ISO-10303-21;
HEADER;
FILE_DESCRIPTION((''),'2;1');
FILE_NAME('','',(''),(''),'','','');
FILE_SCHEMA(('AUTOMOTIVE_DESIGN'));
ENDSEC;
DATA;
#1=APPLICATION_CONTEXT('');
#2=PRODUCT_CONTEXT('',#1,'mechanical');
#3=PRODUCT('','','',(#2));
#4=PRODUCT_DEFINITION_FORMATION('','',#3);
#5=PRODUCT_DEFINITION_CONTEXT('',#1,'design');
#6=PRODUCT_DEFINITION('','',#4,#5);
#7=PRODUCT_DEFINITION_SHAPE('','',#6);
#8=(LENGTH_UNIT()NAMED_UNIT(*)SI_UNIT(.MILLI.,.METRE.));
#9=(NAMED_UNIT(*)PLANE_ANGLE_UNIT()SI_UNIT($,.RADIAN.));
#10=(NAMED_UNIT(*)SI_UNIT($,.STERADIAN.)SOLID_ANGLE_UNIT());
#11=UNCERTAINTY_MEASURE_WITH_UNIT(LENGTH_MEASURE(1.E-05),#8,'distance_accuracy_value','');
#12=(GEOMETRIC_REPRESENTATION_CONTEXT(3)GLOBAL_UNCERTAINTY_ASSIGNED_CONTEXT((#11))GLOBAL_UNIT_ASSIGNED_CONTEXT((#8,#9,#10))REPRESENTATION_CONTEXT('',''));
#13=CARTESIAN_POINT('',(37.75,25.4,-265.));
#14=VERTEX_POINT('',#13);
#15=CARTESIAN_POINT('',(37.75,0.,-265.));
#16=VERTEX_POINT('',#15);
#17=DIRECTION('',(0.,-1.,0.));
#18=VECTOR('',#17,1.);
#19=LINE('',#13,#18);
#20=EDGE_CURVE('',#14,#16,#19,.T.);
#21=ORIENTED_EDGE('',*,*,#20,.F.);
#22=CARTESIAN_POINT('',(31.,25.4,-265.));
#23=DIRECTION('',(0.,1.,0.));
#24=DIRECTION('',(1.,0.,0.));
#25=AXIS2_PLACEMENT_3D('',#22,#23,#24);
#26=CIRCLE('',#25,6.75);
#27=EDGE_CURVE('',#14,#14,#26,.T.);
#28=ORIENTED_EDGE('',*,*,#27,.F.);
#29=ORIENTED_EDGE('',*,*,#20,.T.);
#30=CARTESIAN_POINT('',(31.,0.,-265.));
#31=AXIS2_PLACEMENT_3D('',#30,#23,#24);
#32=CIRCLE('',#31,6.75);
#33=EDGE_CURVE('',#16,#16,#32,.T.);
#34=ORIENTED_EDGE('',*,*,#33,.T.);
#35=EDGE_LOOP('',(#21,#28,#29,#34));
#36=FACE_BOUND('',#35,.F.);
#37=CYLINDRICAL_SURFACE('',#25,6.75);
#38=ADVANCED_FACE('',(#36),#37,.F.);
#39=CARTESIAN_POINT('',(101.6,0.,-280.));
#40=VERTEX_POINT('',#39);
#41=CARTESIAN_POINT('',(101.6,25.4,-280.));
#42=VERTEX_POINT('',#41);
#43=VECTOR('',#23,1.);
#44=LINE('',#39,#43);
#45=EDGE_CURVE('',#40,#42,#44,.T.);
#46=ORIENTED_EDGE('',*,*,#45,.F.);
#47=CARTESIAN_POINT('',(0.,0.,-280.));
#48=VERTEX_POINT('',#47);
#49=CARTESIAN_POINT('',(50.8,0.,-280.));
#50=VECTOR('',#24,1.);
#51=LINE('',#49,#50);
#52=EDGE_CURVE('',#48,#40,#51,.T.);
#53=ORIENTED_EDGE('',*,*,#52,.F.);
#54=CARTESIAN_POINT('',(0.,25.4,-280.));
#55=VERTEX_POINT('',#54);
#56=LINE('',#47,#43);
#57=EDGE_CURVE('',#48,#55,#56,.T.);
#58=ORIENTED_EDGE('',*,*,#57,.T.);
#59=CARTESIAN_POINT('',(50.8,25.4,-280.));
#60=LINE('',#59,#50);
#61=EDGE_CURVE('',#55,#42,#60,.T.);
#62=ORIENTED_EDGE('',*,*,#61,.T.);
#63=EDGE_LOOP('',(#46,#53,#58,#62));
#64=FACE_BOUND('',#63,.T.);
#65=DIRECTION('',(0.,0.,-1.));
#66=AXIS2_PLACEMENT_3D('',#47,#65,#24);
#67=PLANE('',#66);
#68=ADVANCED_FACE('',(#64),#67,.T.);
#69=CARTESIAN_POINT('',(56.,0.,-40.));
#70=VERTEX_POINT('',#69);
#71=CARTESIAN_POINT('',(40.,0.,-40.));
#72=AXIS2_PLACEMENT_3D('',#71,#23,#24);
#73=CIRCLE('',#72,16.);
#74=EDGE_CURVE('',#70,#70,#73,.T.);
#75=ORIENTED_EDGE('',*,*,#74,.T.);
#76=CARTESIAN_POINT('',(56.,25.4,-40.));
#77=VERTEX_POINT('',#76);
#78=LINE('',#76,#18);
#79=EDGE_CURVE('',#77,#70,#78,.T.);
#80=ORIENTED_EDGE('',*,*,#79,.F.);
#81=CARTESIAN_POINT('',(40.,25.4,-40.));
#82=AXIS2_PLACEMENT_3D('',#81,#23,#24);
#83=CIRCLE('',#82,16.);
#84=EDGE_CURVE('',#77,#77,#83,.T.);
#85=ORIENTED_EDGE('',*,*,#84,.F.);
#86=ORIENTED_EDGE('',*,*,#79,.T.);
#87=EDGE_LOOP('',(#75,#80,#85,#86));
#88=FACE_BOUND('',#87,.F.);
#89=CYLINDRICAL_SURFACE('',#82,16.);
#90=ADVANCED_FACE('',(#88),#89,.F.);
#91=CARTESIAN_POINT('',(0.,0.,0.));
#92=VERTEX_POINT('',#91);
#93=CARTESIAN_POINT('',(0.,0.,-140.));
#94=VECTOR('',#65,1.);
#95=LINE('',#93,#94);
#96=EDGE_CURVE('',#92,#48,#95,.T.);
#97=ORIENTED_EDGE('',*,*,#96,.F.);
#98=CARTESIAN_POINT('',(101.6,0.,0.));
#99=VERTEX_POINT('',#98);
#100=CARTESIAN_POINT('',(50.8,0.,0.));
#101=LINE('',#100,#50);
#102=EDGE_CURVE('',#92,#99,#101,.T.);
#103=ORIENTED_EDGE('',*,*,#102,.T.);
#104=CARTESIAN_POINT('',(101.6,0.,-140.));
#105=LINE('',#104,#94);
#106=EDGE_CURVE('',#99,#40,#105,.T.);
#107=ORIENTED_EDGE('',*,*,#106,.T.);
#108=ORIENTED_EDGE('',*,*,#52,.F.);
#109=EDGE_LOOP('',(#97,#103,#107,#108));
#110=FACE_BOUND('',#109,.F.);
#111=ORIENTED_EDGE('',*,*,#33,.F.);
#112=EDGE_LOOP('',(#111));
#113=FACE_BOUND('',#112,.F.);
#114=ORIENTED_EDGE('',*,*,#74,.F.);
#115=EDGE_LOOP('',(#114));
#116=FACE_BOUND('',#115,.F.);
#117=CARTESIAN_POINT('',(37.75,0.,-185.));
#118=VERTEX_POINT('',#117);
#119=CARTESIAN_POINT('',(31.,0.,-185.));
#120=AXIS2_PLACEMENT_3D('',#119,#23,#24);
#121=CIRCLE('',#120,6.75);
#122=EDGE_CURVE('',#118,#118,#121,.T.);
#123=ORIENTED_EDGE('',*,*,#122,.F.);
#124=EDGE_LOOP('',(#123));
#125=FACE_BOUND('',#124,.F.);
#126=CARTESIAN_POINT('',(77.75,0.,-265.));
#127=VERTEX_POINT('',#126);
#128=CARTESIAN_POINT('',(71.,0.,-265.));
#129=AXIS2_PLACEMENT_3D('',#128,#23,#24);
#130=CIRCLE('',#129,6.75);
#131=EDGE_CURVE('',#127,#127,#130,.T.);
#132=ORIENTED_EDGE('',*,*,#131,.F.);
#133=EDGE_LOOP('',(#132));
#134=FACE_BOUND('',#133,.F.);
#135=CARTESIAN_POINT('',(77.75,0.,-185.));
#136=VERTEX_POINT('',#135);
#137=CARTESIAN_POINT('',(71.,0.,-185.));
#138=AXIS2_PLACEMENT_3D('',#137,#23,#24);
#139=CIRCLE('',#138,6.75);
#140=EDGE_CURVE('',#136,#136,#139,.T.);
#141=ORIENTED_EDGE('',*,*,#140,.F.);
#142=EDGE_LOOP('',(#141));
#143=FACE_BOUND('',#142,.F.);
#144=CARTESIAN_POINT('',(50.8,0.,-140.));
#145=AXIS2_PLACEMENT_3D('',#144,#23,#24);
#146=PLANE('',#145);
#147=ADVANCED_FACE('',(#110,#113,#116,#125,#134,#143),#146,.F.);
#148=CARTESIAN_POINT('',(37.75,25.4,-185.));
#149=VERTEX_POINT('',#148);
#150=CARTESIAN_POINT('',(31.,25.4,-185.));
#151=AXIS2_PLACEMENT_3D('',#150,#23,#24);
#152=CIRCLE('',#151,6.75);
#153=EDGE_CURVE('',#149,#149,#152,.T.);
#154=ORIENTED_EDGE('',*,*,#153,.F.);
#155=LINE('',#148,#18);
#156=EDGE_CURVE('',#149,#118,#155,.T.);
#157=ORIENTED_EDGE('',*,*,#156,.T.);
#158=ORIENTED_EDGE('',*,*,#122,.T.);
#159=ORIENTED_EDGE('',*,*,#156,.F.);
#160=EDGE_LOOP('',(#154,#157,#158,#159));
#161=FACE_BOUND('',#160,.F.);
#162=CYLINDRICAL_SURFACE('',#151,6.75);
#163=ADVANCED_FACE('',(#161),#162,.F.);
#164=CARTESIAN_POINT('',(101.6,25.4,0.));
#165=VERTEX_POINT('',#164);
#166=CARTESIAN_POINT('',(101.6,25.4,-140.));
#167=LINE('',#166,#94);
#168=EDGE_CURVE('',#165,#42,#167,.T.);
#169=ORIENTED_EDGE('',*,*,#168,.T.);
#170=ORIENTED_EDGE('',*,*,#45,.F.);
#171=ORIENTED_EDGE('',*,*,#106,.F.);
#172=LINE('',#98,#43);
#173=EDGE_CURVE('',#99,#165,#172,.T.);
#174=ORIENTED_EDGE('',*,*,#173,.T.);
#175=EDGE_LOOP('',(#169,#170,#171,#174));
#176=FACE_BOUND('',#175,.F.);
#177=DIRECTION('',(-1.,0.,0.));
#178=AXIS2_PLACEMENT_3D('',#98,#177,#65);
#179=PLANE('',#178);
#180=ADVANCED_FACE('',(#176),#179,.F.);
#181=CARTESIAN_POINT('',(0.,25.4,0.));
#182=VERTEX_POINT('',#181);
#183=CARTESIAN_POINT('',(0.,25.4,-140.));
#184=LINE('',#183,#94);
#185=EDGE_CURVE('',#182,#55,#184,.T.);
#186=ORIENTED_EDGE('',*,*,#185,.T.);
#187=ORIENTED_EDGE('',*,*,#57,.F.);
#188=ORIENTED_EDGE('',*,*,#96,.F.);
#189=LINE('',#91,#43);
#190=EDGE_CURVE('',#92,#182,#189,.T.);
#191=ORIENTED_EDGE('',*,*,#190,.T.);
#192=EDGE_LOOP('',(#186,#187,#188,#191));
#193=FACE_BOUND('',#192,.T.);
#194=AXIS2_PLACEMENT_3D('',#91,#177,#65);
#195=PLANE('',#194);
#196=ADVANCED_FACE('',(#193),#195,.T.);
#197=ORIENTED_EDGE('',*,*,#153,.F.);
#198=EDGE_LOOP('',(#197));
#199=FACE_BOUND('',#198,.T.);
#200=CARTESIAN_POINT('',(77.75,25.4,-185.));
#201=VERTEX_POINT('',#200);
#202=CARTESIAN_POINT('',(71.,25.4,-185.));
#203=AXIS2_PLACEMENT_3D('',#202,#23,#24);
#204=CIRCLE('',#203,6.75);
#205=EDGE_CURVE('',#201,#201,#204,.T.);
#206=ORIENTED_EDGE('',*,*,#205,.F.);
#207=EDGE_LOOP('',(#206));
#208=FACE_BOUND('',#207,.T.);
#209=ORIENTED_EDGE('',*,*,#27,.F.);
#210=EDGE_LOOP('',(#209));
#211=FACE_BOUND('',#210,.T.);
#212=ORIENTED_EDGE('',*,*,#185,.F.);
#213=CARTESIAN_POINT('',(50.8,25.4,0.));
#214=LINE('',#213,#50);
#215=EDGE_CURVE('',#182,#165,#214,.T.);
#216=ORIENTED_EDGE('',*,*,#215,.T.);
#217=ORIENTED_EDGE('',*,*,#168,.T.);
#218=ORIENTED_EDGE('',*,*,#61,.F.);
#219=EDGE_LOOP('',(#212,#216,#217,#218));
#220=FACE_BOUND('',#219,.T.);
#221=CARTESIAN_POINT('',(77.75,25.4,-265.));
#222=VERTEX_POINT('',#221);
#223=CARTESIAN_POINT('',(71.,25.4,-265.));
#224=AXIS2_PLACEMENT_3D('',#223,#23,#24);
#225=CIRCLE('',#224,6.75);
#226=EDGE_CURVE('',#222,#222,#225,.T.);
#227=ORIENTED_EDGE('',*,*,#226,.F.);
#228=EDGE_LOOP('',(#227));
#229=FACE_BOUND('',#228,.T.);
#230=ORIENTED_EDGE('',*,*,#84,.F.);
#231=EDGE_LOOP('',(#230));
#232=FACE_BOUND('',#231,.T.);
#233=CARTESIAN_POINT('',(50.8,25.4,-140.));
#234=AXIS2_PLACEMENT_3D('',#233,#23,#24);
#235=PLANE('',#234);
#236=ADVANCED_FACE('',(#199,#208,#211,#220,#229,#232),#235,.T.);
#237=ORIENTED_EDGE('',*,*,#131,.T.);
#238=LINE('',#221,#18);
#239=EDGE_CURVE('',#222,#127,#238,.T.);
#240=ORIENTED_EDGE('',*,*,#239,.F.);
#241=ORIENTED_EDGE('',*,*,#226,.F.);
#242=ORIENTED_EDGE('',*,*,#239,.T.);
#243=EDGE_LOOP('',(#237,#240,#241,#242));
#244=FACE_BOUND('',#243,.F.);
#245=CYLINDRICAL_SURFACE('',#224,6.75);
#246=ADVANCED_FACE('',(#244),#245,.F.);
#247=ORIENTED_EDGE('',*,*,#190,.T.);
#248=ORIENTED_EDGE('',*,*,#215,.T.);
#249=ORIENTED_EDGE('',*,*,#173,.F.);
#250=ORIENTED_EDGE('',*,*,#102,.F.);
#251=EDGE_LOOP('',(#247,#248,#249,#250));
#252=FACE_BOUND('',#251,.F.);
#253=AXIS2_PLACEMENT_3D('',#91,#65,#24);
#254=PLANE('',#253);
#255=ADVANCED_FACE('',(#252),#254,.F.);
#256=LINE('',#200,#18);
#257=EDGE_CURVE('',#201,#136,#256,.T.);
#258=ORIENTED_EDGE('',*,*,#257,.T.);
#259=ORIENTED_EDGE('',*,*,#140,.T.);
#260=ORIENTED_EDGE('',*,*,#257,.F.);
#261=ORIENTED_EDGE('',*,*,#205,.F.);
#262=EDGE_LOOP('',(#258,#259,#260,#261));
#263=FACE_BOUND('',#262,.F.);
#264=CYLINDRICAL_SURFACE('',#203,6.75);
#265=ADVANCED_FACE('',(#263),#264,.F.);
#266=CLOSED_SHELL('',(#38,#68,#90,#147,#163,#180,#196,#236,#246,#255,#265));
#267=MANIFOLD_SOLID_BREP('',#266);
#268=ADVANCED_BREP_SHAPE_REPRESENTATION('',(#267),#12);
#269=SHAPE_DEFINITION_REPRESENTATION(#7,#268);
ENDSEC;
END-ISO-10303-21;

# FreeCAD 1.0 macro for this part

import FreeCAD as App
import Part
import Sketcher
from FreeCAD import Vector

doc = App.newDocument("Part")
body = doc.addObject("PartDesign::Body", "Body")

# Sketch on XZ plane
sketch1 = body.newObject("Sketcher::SketchObject", "Sketch")
sketch1.AttachmentSupport = (doc.getObject("XZ_Plane"), [""])
sketch1.MapMode = "FlatFace"
sketch1.addGeometry([
    Part.LineSegment(Vector(0, -280, 0), Vector(0, 0, 0)),
    Part.LineSegment(Vector(0, 0, 0), Vector(102, 0, 0)),
    Part.LineSegment(Vector(102, 0, 0), Vector(102, -280, 0)),
    Part.LineSegment(Vector(102, -280, 0), Vector(0, -280, 0)),
], False)
sketch1.addConstraint([
    Sketcher.Constraint("Coincident", 0, 2, 1, 1),
    Sketcher.Constraint("Coincident", 1, 2, 2, 1),
    Sketcher.Constraint("Coincident", 2, 2, 3, 1),
    Sketcher.Constraint("Coincident", 3, 2, 0, 1),
    Sketcher.Constraint("Vertical", 0),
    Sketcher.Constraint("Horizontal", 1),
    Sketcher.Constraint("Vertical", 2),
    Sketcher.Constraint("Horizontal", 3),
    Sketcher.Constraint("Coincident", 0, 2, -1, 1),
    Sketcher.Constraint("DistanceY", 0, 1, 0, 2, 280.0),
    Sketcher.Constraint("DistanceX", 1, 1, 1, 2, 101.6),
])
pad1 = body.newObject("PartDesign::Pad", "Pad")
pad1.Profile = sketch1
pad1.Length = 25.4
pad1.Reversed = True

# Sketch on XZ plane
sketch2 = body.newObject("Sketcher::SketchObject", "Sketch001")
sketch2.AttachmentSupport = (doc.getObject("XZ_Plane"), [""])
sketch2.MapMode = "FlatFace"
sketch2.AttachmentOffset = App.Placement(Vector(0, 0, -25.4), App.Rotation())
sketch2.addGeometry([
    Part.Circle(Vector(71, -265, 0), Vector(0, 0, 1), 7),
    Part.Circle(Vector(31, -265, 0), Vector(0, 0, 1), 7),
    Part.Circle(Vector(31, -185, 0), Vector(0, 0, 1), 7),
    Part.Circle(Vector(71, -185, 0), Vector(0, 0, 1), 7),
], False)
sketch2.addConstraint([
    Sketcher.Constraint("Equal", 0, 1),
    Sketcher.Constraint("Equal", 1, 2),
    Sketcher.Constraint("Equal", 2, 3),
    Sketcher.Constraint("Horizontal", 0, 3, 1, 3),
    Sketcher.Constraint("Horizontal", 2, 3, 3, 3),
    Sketcher.Constraint("Vertical", 1, 3, 2, 3),
    Sketcher.Constraint("Vertical", 0, 3, 3, 3),
    Sketcher.Constraint("Diameter", 0, 13.5),
    Sketcher.Constraint("DistanceX", -1, 1, 0, 3, 71.0),
    Sketcher.Constraint("DistanceY", 0, 3, -1, 1, 265.0),
    Sketcher.Constraint("DistanceX", -1, 1, 1, 3, 31.0),
    Sketcher.Constraint("DistanceY", 2, 3, -1, 1, 185.0),
])
pocket1 = body.newObject("PartDesign::Pocket", "Pocket")
pocket1.Profile = sketch2
pocket1.Length = 25.4
pocket1.Reversed = True

# Sketch on XZ plane
sketch3 = body.newObject("Sketcher::SketchObject", "Sketch002")
sketch3.AttachmentSupport = (doc.getObject("XZ_Plane"), [""])
sketch3.MapMode = "FlatFace"
sketch3.AttachmentOffset = App.Placement(Vector(0, 0, -25.4), App.Rotation())
sketch3.addGeometry(Part.Circle(Vector(40, -40, 0), Vector(0, 0, 1), 16), False)
sketch3.addConstraint([
    Sketcher.Constraint("Diameter", 0, 32.0),
    Sketcher.Constraint("DistanceX", -1, 1, 0, 3, 40.0),
    Sketcher.Constraint("DistanceY", 0, 3, -1, 1, 40.0),
])
pocket2 = body.newObject("PartDesign::Pocket", "Pocket001")
pocket2.Profile = sketch3
pocket2.Length = 25.4
pocket2.Reversed = True

doc.recompute()
